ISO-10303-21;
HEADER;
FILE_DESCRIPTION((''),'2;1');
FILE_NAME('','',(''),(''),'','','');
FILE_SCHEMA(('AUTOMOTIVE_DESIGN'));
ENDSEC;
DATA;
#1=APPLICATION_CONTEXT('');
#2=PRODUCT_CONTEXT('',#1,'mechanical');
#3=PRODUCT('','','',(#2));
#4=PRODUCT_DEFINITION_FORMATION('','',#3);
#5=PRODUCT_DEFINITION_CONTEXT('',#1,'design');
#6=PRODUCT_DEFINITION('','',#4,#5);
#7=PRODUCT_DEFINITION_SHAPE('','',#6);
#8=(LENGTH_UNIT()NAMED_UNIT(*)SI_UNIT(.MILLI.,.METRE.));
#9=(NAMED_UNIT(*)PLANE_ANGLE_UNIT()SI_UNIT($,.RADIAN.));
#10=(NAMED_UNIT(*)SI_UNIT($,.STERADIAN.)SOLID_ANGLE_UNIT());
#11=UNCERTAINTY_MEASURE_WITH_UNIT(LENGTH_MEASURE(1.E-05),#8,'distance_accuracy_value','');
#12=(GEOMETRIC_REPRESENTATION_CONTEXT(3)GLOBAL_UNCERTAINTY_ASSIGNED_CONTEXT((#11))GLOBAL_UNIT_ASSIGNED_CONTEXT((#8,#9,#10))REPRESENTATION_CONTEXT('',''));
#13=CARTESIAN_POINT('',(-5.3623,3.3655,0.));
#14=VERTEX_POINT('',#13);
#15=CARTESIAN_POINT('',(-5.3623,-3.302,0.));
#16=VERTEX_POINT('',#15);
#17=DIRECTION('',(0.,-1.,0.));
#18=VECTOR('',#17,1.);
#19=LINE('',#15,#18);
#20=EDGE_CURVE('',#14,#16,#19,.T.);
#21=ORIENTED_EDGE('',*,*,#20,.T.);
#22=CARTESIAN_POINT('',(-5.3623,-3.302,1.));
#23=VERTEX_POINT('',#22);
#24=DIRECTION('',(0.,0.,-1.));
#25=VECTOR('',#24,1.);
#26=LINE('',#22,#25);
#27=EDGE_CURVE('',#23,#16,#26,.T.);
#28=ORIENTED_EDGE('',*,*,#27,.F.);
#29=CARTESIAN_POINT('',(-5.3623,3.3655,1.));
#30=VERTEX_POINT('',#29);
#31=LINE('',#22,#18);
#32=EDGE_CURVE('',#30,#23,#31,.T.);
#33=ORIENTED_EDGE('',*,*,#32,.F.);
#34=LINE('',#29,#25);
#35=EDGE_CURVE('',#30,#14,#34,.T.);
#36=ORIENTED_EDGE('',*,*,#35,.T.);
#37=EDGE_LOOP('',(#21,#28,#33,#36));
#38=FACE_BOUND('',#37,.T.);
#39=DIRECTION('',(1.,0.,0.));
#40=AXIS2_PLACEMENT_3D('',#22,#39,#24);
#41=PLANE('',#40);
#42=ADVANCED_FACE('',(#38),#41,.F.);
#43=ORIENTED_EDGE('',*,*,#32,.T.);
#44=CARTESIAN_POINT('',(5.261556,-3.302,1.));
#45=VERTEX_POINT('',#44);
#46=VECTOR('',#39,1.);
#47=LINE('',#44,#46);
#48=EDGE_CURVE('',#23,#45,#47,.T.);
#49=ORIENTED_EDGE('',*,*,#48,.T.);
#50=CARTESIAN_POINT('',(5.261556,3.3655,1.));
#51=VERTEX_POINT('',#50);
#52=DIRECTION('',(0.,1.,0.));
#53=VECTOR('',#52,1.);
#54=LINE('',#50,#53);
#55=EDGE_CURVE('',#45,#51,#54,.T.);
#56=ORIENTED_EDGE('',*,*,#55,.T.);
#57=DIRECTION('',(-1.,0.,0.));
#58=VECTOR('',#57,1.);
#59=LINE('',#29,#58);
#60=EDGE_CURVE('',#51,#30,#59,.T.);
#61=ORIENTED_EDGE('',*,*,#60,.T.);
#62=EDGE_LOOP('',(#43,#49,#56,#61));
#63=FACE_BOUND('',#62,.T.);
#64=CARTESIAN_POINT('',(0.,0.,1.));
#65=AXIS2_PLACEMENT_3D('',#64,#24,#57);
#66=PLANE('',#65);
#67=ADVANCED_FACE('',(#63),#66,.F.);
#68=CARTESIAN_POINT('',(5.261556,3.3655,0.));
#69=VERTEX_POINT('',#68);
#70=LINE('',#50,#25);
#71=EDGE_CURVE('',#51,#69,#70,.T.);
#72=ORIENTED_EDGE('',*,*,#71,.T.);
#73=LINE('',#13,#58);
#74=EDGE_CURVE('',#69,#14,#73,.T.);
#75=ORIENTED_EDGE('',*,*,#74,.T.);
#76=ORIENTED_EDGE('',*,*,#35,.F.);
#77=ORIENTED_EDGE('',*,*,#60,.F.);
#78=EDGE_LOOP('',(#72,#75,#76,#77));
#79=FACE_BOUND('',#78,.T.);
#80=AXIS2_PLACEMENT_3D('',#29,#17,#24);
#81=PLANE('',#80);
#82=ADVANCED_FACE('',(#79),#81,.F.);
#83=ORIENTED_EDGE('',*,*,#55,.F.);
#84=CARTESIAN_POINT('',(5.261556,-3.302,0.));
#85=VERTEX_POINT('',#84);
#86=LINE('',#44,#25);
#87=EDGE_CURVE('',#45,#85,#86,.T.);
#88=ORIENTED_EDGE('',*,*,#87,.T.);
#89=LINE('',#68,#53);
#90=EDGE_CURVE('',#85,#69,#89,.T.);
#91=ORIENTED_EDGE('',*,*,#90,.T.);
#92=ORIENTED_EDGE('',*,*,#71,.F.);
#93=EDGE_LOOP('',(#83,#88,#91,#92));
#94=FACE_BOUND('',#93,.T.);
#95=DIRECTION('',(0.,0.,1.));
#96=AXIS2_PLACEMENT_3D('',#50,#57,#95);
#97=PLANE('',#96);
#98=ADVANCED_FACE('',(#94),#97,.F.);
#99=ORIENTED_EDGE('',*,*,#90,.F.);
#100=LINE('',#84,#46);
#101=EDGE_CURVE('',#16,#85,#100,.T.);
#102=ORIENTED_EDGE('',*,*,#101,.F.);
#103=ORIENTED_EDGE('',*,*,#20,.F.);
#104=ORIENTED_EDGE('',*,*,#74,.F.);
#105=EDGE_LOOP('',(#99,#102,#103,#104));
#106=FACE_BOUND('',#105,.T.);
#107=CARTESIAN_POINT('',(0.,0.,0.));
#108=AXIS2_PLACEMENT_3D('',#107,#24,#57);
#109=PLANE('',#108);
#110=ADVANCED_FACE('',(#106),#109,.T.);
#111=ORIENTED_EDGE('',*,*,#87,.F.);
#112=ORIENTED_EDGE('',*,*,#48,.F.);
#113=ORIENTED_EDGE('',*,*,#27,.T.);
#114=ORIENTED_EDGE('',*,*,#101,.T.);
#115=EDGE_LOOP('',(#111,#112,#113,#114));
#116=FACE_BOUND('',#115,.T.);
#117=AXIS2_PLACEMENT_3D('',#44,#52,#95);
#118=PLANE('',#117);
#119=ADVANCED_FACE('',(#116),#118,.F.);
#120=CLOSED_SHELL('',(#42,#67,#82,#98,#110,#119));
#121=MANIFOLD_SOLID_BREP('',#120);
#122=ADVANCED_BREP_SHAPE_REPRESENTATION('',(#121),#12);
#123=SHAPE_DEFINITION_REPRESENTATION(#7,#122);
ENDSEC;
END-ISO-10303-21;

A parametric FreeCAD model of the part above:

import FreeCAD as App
import Part
import Sketcher
from FreeCAD import Vector
Q = App.Units.Quantity


def add_polygon(sketch, points):
    """Adds a closed chain of lines whose ends are joined by coincident constraints."""
    first, n = sketch.GeometryCount, len(points)
    for a, b in zip(points, points[1:] + points[:1]):
        sketch.addGeometry(Part.LineSegment(App.Vector(*a, 0), App.Vector(*b, 0)), False)
    for i in range(n):
        sketch.addConstraint(Sketcher.Constraint("Coincident", first + i, 2, first + (i + 1) % n, 1))

doc = App.newDocument("Part")
params = doc.addObject("Spreadsheet::Sheet", "Params")
for row, (alias, value) in enumerate([
    ("pad1_length", "1 mm"),
], start=1):
    params.set(f"A{row}", alias)
    params.set(f"B{row}", "=" + value)
    params.setAlias(f"B{row}", alias)

body = doc.addObject("PartDesign::Body", "Body")

# Sketch on XY plane
sketch1 = body.newObject("Sketcher::SketchObject", "Sketch")
sketch1.AttachmentSupport = (doc.getObject("XY_Plane"), [""])
sketch1.MapMode = "FlatFace"
add_polygon(sketch1, [(-5, 3), (-5, -3), (5, -3), (5, 3)])  # lines 0-3
sketch1.addConstraint(Sketcher.Constraint("Vertical", 0))
sketch1.addConstraint(Sketcher.Constraint("Horizontal", 1))
sketch1.addConstraint(Sketcher.Constraint("Vertical", 2))
sketch1.addConstraint(Sketcher.Constraint("Horizontal", 3))
sketch1.addConstraint(Sketcher.Constraint("DistanceY", 0, 2, 0, 1, Q("6.6675 mm")))
sketch1.addConstraint(Sketcher.Constraint("DistanceY", 0, 2, -1, 1, Q("3.302 mm")))
sketch1.addConstraint(Sketcher.Constraint("DistanceX", 0, 2, -1, 1, Q("5.3623 mm")))
sketch1.addConstraint(Sketcher.Constraint("DistanceX", 1, 1, 1, 2, Q("10.623856 mm")))
pad1 = body.newObject("PartDesign::Pad", "Pad")
pad1.Profile = sketch1
pad1.setExpression("Length", "Params.pad1_length")

doc.recompute()
